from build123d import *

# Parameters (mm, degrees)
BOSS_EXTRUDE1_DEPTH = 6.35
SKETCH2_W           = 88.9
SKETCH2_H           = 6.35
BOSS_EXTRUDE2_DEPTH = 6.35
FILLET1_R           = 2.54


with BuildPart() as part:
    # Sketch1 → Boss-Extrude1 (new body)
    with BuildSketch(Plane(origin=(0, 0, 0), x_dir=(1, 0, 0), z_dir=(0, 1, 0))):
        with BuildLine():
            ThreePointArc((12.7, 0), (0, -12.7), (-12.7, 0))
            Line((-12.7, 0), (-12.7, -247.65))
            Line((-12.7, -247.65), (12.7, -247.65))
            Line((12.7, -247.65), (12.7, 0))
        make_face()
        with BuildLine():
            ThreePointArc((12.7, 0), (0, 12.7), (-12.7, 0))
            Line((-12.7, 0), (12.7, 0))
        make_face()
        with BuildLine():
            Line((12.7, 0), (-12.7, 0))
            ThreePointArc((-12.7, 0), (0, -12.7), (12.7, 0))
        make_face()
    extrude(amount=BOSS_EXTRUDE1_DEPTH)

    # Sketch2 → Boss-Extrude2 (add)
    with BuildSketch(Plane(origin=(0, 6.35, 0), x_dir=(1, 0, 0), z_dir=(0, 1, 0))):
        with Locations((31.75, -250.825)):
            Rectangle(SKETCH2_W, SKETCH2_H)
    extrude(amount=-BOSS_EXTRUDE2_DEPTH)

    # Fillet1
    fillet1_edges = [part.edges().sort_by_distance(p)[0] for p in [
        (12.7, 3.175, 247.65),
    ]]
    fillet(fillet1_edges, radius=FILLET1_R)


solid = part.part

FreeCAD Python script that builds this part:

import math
import FreeCAD as App
import Part
import Sketcher
from FreeCAD import Vector
Q = App.Units.Quantity


def edges_at(feature, points):
    """Names of the edges that pass closest to the given points."""
    edges = feature.Shape.Edges
    near = lambda p: min(range(len(edges)), key=lambda i: edges[i].distToShape(Part.Vertex(*p))[0])
    return sorted({f"Edge{near(p) + 1}" for p in points})


def add_polygon(sketch, points):
    """Adds a closed chain of lines whose ends are joined by coincident constraints."""
    first, n = sketch.GeometryCount, len(points)
    for a, b in zip(points, points[1:] + points[:1]):
        sketch.addGeometry(Part.LineSegment(App.Vector(*a, 0), App.Vector(*b, 0)), False)
    for i in range(n):
        sketch.addConstraint(Sketcher.Constraint("Coincident", first + i, 2, first + (i + 1) % n, 1))

doc = App.newDocument("Part")
body = doc.addObject("PartDesign::Body", "Body")

# Sketch on XZ plane
sketch1 = body.newObject("Sketcher::SketchObject", "Sketch")
sketch1.AttachmentSupport = (doc.getObject("XZ_Plane"), [""])
sketch1.MapMode = "FlatFace"
sketch1.addGeometry(Part.LineSegment(Vector(-13, 248, 0), Vector(13, 248, 0)), False)
sketch1.addGeometry(Part.LineSegment(Vector(13, 248, 0), Vector(13, 0, 0)), False)
sketch1.addGeometry(Part.ArcOfCircle(Part.Circle(Vector(0, 0, 0), Vector(0, 0, 1), 13), math.radians(180), math.radians(360)), False)
sketch1.addGeometry(Part.LineSegment(Vector(-13, 0, 0), Vector(-13, 248, 0)), False)
sketch1.addConstraint(Sketcher.Constraint("Coincident", 0, 2, 1, 1))
sketch1.addConstraint(Sketcher.Constraint("Tangent", 1, 2, 2, 2))
sketch1.addConstraint(Sketcher.Constraint("Tangent", 2, 1, 3, 1))
sketch1.addConstraint(Sketcher.Constraint("Coincident", 3, 2, 0, 1))
sketch1.addConstraint(Sketcher.Constraint("Horizontal", 0))
sketch1.addConstraint(Sketcher.Constraint("Vertical", 1))
sketch1.addConstraint(Sketcher.Constraint("Vertical", 3))
sketch1.addConstraint(Sketcher.Constraint("Coincident", 2, 3, -1, 1))
sketch1.addConstraint(Sketcher.Constraint("Radius", 2, Q("0.5 in")))
sketch1.addConstraint(Sketcher.Constraint("DistanceY", 1, 2, 1, 1, Q("9.75 in")))
pad1 = body.newObject("PartDesign::Pad", "Pad")
pad1.Profile = sketch1
pad1.Length = Q("0.25 in")
pad1.Reversed = True

# Sketch on XZ plane
sketch2 = body.newObject("Sketcher::SketchObject", "Sketch001")
sketch2.AttachmentSupport = (doc.getObject("XZ_Plane"), [""])
sketch2.MapMode = "FlatFace"
sketch2.AttachmentOffset = App.Placement(Vector(0, 0, -0.25 * 25.4), App.Rotation())
add_polygon(sketch2, [(-13, 248), (-13, 254), (76, 254), (76, 248)])  # lines 0-3
sketch2.addConstraint(Sketcher.Constraint("Vertical", 0))
sketch2.addConstraint(Sketcher.Constraint("Horizontal", 1))
sketch2.addConstraint(Sketcher.Constraint("Vertical", 2))
sketch2.addConstraint(Sketcher.Constraint("Horizontal", 3))
sketch2.addConstraint(Sketcher.Constraint("DistanceX", 1, 1, 1, 2, Q("3.5 in")))
sketch2.addConstraint(Sketcher.Constraint("DistanceY", -1, 1, 0, 2, Q("10 in")))
sketch2.addConstraint(Sketcher.Constraint("DistanceX", -1, 1, 1, 2, Q("3 in")))
sketch2.addConstraint(Sketcher.Constraint("DistanceY", 0, 1, 0, 2, Q("0.25 in")))
pad2 = body.newObject("PartDesign::Pad", "Pad001")
pad2.Profile = sketch2
pad2.Length = Q("0.25 in")
doc.recompute()

fillet = body.newObject("PartDesign::Fillet", "Fillet")
fillet.Base = (pad2, edges_at(pad2, [(12.7, 3.175, 247.65)]))
fillet.Radius = Q("0.1 in")

doc.recompute()
